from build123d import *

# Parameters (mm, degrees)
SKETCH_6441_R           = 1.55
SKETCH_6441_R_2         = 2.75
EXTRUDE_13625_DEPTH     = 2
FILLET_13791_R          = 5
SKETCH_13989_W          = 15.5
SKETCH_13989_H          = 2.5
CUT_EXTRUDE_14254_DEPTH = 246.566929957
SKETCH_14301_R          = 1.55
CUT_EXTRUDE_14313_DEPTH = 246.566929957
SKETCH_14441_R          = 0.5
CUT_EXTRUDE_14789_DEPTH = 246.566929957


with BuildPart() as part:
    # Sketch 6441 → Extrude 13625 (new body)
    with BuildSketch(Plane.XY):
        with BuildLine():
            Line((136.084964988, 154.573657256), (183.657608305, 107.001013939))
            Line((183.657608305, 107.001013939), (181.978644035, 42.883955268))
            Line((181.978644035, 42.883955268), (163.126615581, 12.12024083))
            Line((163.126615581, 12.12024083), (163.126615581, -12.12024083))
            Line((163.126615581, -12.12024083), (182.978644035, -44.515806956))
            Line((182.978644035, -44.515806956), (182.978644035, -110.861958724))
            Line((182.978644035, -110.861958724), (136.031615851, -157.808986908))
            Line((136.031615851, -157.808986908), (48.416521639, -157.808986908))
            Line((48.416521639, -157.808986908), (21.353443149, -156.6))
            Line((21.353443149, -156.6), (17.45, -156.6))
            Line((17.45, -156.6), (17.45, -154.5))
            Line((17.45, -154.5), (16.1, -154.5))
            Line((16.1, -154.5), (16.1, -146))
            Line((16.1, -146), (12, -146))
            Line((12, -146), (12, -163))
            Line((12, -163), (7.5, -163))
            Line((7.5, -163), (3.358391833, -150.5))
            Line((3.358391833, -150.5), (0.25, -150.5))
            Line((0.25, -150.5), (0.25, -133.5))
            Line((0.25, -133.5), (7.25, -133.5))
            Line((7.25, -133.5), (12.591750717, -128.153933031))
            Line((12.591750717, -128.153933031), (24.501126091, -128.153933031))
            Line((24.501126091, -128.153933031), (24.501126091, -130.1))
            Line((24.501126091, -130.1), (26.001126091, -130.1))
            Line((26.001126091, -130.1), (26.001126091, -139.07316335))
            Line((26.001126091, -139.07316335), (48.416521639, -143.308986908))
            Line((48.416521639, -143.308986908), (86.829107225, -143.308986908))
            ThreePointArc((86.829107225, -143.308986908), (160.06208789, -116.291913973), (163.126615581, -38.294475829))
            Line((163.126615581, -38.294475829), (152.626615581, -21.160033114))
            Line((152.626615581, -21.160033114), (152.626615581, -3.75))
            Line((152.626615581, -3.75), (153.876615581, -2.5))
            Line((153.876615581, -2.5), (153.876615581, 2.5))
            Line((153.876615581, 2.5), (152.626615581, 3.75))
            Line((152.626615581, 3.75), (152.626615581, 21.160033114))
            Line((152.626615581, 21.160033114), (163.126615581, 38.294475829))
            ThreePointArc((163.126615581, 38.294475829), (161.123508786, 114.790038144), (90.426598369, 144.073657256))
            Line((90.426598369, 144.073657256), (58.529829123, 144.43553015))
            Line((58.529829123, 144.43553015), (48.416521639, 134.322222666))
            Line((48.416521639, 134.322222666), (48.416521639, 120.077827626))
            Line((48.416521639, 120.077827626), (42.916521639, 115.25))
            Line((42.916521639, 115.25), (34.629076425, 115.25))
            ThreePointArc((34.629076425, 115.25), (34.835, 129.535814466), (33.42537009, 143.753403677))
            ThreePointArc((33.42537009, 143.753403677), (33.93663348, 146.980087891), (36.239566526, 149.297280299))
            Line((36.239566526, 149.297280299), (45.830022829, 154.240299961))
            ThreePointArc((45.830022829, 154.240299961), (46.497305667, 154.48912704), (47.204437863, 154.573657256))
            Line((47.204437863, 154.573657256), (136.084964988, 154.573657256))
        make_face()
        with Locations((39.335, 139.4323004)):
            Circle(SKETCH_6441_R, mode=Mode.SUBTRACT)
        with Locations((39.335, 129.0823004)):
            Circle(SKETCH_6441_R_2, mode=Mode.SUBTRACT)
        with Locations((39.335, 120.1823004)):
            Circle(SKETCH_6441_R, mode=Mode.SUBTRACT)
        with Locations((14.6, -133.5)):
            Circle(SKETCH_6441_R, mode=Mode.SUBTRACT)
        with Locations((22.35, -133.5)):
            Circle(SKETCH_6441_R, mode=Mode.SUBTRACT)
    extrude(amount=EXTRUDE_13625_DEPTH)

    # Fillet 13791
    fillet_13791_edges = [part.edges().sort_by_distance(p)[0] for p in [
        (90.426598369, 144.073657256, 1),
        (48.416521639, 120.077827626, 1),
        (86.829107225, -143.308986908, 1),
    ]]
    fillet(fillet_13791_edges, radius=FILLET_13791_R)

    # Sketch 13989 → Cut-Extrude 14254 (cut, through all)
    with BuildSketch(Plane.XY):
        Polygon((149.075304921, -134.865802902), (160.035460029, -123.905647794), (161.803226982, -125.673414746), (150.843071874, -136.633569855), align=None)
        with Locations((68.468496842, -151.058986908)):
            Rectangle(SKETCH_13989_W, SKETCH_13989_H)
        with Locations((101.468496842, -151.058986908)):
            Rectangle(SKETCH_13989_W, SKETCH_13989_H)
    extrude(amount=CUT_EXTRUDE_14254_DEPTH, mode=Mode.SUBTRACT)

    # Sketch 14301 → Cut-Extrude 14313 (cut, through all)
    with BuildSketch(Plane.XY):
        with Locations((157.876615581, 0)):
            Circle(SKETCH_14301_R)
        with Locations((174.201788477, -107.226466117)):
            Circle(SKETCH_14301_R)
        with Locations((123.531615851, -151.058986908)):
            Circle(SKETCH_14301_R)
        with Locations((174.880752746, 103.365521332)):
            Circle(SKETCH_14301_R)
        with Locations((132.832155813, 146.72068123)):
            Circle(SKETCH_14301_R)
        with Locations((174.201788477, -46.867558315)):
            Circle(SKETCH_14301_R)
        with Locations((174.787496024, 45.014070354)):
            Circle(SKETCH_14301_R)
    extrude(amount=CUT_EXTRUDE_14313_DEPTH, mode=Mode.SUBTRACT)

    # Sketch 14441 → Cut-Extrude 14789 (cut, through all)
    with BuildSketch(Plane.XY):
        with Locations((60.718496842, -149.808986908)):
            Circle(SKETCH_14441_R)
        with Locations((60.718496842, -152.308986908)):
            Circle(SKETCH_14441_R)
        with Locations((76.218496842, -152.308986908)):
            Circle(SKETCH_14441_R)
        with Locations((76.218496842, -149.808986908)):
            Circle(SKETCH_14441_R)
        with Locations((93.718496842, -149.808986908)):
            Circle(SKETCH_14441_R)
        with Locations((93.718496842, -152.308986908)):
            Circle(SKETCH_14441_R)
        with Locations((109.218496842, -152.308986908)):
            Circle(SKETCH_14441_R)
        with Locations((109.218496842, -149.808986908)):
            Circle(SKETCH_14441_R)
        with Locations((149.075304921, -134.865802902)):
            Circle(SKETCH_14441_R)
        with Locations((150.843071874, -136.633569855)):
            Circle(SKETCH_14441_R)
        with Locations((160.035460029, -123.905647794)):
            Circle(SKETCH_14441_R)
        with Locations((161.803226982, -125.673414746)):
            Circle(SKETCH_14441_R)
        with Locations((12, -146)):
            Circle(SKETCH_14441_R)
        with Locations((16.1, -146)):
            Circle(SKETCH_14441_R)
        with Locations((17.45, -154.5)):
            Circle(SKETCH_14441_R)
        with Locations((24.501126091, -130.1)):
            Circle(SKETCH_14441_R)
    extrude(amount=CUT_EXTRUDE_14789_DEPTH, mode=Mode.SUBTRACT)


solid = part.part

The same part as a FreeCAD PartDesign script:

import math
import FreeCAD as App
import Part
import Sketcher
from FreeCAD import Vector
Q = App.Units.Quantity


def edges_at(feature, points):
    """Names of the edges that pass closest to the given points."""
    edges = feature.Shape.Edges
    near = lambda p: min(range(len(edges)), key=lambda i: edges[i].distToShape(Part.Vertex(*p))[0])
    return sorted({f"Edge{near(p) + 1}" for p in points})

doc = App.newDocument("Part")
body = doc.addObject("PartDesign::Body", "Body")

# Sketch on XY plane
sketch1 = body.newObject("Sketcher::SketchObject", "Sketch")
sketch1.AttachmentSupport = (doc.getObject("XY_Plane"), [""])
sketch1.MapMode = "FlatFace"
sketch1.addGeometry(Part.LineSegment(Vector(183.7, 107, 0), Vector(136.1, 154.6, 0)), False)
sketch1.addGeometry(Part.LineSegment(Vector(136.1, 154.6, 0), Vector(47.2, 154.6, 0)), False)
sketch1.addGeometry(Part.ArcOfCircle(Part.Circle(Vector(47.2, 151.6, 0), Vector(0, 0, 1), 3), math.radians(90), math.radians(117)), False)
sketch1.addGeometry(Part.LineSegment(Vector(45.8, 154.2, 0), Vector(36.2, 149.3, 0)), False)
sketch1.addGeometry(Part.ArcOfCircle(Part.Circle(Vector(38.7, 144.6, 0), Vector(0, 0, 1), 5.3), math.radians(117), math.radians(189)), False)
sketch1.addGeometry(Part.ArcOfCircle(Part.Circle(Vector(-91.3, 124.2, 0), Vector(0, 0, 1), 126.2), math.radians(-4.07), math.radians(8.91)), False)
sketch1.addGeometry(Part.LineSegment(Vector(34.6, 115.2, 0), Vector(42.9, 115.2, 0)), False)
sketch1.addGeometry(Part.LineSegment(Vector(42.9, 115.2, 0), Vector(48.4, 120.1, 0)), False)
sketch1.addGeometry(Part.LineSegment(Vector(48.4, 120.1, 0), Vector(48.4, 134.3, 0)), False)
sketch1.addGeometry(Part.LineSegment(Vector(48.4, 134.3, 0), Vector(58.5, 144.4, 0)), False)
sketch1.addGeometry(Part.LineSegment(Vector(58.5, 144.4, 0), Vector(90.4, 144.1, 0)), False)
sketch1.addGeometry(Part.ArcOfCircle(Part.Circle(Vector(103.2, 75, 0), Vector(0, 0, 1), 70.2), math.radians(-32), math.radians(101)), False)
sketch1.addGeometry(Part.LineSegment(Vector(163.1, 38.3, 0), Vector(152.6, 21.2, 0)), False)
sketch1.addGeometry(Part.LineSegment(Vector(152.6, 21.2, 0), Vector(152.6, 3.8, 0)), False)
sketch1.addGeometry(Part.LineSegment(Vector(152.6, 3.8, 0), Vector(153.9, 2.5, 0)), False)
sketch1.addGeometry(Part.LineSegment(Vector(153.9, 2.5, 0), Vector(153.9, -2.5, 0)), False)
sketch1.addGeometry(Part.LineSegment(Vector(153.9, -2.5, 0), Vector(152.6, -3.8, 0)), False)
sketch1.addGeometry(Part.LineSegment(Vector(152.6, -3.8, 0), Vector(152.6, -21.2, 0)), False)
sketch1.addGeometry(Part.LineSegment(Vector(152.6, -21.2, 0), Vector(163.1, -38.3, 0)), False)
sketch1.addGeometry(Part.ArcOfCircle(Part.Circle(Vector(103.2, -75, 0), Vector(0, 0, 1), 70.2), math.radians(-103), math.radians(31)), False)
sketch1.addGeometry(Part.LineSegment(Vector(86.8, -143.3, 0), Vector(48.4, -143.3, 0)), False)
sketch1.addGeometry(Part.LineSegment(Vector(48.4, -143.3, 0), Vector(26, -139.1, 0)), False)
sketch1.addGeometry(Part.LineSegment(Vector(26, -139.1, 0), Vector(26, -130.1, 0)), False)
sketch1.addGeometry(Part.LineSegment(Vector(26, -130.1, 0), Vector(24.5, -130.1, 0)), False)
sketch1.addGeometry(Part.LineSegment(Vector(24.5, -130.1, 0), Vector(24.5, -128.2, 0)), False)
sketch1.addGeometry(Part.LineSegment(Vector(24.5, -128.2, 0), Vector(12.6, -128.2, 0)), False)
sketch1.addGeometry(Part.LineSegment(Vector(12.6, -128.2, 0), Vector(7.2, -133.5, 0)), False)
sketch1.addGeometry(Part.LineSegment(Vector(7.2, -133.5, 0), Vector(0.2, -133.5, 0)), False)
sketch1.addGeometry(Part.LineSegment(Vector(0.2, -133.5, 0), Vector(0.2, -150.5, 0)), False)
sketch1.addGeometry(Part.LineSegment(Vector(0.2, -150.5, 0), Vector(3.4, -150.5, 0)), False)
sketch1.addGeometry(Part.LineSegment(Vector(3.4, -150.5, 0), Vector(7.5, -163, 0)), False)
sketch1.addGeometry(Part.LineSegment(Vector(7.5, -163, 0), Vector(12, -163, 0)), False)
sketch1.addGeometry(Part.LineSegment(Vector(12, -163, 0), Vector(12, -146, 0)), False)
sketch1.addGeometry(Part.LineSegment(Vector(12, -146, 0), Vector(16.1, -146, 0)), False)
sketch1.addGeometry(Part.LineSegment(Vector(16.1, -146, 0), Vector(16.1, -154.5, 0)), False)
sketch1.addGeometry(Part.LineSegment(Vector(16.1, -154.5, 0), Vector(17.4, -154.5, 0)), False)
sketch1.addGeometry(Part.LineSegment(Vector(17.4, -154.5, 0), Vector(17.4, -156.6, 0)), False)
sketch1.addGeometry(Part.LineSegment(Vector(17.4, -156.6, 0), Vector(21.4, -156.6, 0)), False)
sketch1.addGeometry(Part.LineSegment(Vector(21.4, -156.6, 0), Vector(48.4, -157.8, 0)), False)
sketch1.addGeometry(Part.LineSegment(Vector(48.4, -157.8, 0), Vector(136, -157.8, 0)), False)
sketch1.addGeometry(Part.LineSegment(Vector(136, -157.8, 0), Vector(183, -110.9, 0)), False)
sketch1.addGeometry(Part.LineSegment(Vector(183, -110.9, 0), Vector(183, -44.5, 0)), False)
sketch1.addGeometry(Part.LineSegment(Vector(183, -44.5, 0), Vector(163.1, -12.1, 0)), False)
sketch1.addGeometry(Part.LineSegment(Vector(163.1, -12.1, 0), Vector(163.1, 12.1, 0)), False)
sketch1.addGeometry(Part.LineSegment(Vector(163.1, 12.1, 0), Vector(182, 42.9, 0)), False)
sketch1.addGeometry(Part.LineSegment(Vector(182, 42.9, 0), Vector(183.7, 107, 0)), False)
sketch1.addGeometry(Part.Circle(Vector(22.4, -133.5, 0), Vector(0, 0, 1), 1.6), False)
sketch1.addGeometry(Part.Circle(Vector(14.6, -133.5, 0), Vector(0, 0, 1), 1.6), False)
sketch1.addGeometry(Part.Circle(Vector(39.3, 120.2, 0), Vector(0, 0, 1), 1.6), False)
sketch1.addGeometry(Part.Circle(Vector(39.3, 129.1, 0), Vector(0, 0, 1), 2.8), False)
sketch1.addGeometry(Part.Circle(Vector(39.3, 139.4, 0), Vector(0, 0, 1), 1.6), False)
sketch1.addConstraint(Sketcher.Constraint("Coincident", 0, 2, 1, 1))
sketch1.addConstraint(Sketcher.Constraint("Tangent", 1, 2, 2, 1))
sketch1.addConstraint(Sketcher.Constraint("Tangent", 2, 2, 3, 1))
sketch1.addConstraint(Sketcher.Constraint("Tangent", 3, 2, 4, 1))
sketch1.addConstraint(Sketcher.Constraint("Tangent", 4, 2, 5, 2))
sketch1.addConstraint(Sketcher.Constraint("Coincident", 5, 1, 6, 1))
sketch1.addConstraint(Sketcher.Constraint("Coincident", 6, 2, 7, 1))
sketch1.addConstraint(Sketcher.Constraint("Coincident", 7, 2, 8, 1))
sketch1.addConstraint(Sketcher.Constraint("Coincident", 8, 2, 9, 1))
sketch1.addConstraint(Sketcher.Constraint("Coincident", 9, 2, 10, 1))
sketch1.addConstraint(Sketcher.Constraint("Coincident", 10, 2, 11, 2))
sketch1.addConstraint(Sketcher.Constraint("Tangent", 11, 1, 12, 1))
sketch1.addConstraint(Sketcher.Constraint("Coincident", 12, 2, 13, 1))
sketch1.addConstraint(Sketcher.Constraint("Coincident", 13, 2, 14, 1))
sketch1.addConstraint(Sketcher.Constraint("Coincident", 14, 2, 15, 1))
sketch1.addConstraint(Sketcher.Constraint("Coincident", 15, 2, 16, 1))
sketch1.addConstraint(Sketcher.Constraint("Coincident", 16, 2, 17, 1))
sketch1.addConstraint(Sketcher.Constraint("Coincident", 17, 2, 18, 1))
sketch1.addConstraint(Sketcher.Constraint("Tangent", 18, 2, 19, 2))
sketch1.addConstraint(Sketcher.Constraint("Coincident", 19, 1, 20, 1))
sketch1.addConstraint(Sketcher.Constraint("Coincident", 20, 2, 21, 1))
sketch1.addConstraint(Sketcher.Constraint("Coincident", 21, 2, 22, 1))
sketch1.addConstraint(Sketcher.Constraint("Coincident", 22, 2, 23, 1))
sketch1.addConstraint(Sketcher.Constraint("Coincident", 23, 2, 24, 1))
sketch1.addConstraint(Sketcher.Constraint("Coincident", 24, 2, 25, 1))
sketch1.addConstraint(Sketcher.Constraint("Coincident", 25, 2, 26, 1))
sketch1.addConstraint(Sketcher.Constraint("Coincident", 26, 2, 27, 1))
sketch1.addConstraint(Sketcher.Constraint("Coincident", 27, 2, 28, 1))
sketch1.addConstraint(Sketcher.Constraint("Coincident", 28, 2, 29, 1))
sketch1.addConstraint(Sketcher.Constraint("Coincident", 29, 2, 30, 1))
sketch1.addConstraint(Sketcher.Constraint("Coincident", 30, 2, 31, 1))
sketch1.addConstraint(Sketcher.Constraint("Coincident", 31, 2, 32, 1))
sketch1.addConstraint(Sketcher.Constraint("Coincident", 32, 2, 33, 1))
sketch1.addConstraint(Sketcher.Constraint("Coincident", 33, 2, 34, 1))
sketch1.addConstraint(Sketcher.Constraint("Coincident", 34, 2, 35, 1))
sketch1.addConstraint(Sketcher.Constraint("Coincident", 35, 2, 36, 1))
sketch1.addConstraint(Sketcher.Constraint("Coincident", 36, 2, 37, 1))
sketch1.addConstraint(Sketcher.Constraint("Coincident", 37, 2, 38, 1))
sketch1.addConstraint(Sketcher.Constraint("Coincident", 38, 2, 39, 1))
sketch1.addConstraint(Sketcher.Constraint("Coincident", 39, 2, 40, 1))
sketch1.addConstraint(Sketcher.Constraint("Coincident", 40, 2, 41, 1))
sketch1.addConstraint(Sketcher.Constraint("Coincident", 41, 2, 42, 1))
sketch1.addConstraint(Sketcher.Constraint("Coincident", 42, 2, 43, 1))
sketch1.addConstraint(Sketcher.Constraint("Coincident", 43, 2, 44, 1))
sketch1.addConstraint(Sketcher.Constraint("Coincident", 44, 2, 45, 1))
sketch1.addConstraint(Sketcher.Constraint("Coincident", 45, 2, 0, 1))
sketch1.addConstraint(Sketcher.Constraint("Horizontal", 1))
sketch1.addConstraint(Sketcher.Constraint("Horizontal", 6))
sketch1.addConstraint(Sketcher.Constraint("Vertical", 8))
sketch1.addConstraint(Sketcher.Constraint("Vertical", 13))
sketch1.addConstraint(Sketcher.Constraint("Vertical", 15))
sketch1.addConstraint(Sketcher.Constraint("Vertical", 17))
sketch1.addConstraint(Sketcher.Constraint("Horizontal", 20))
sketch1.addConstraint(Sketcher.Constraint("Vertical", 22))
sketch1.addConstraint(Sketcher.Constraint("Horizontal", 23))
sketch1.addConstraint(Sketcher.Constraint("Vertical", 24))
sketch1.addConstraint(Sketcher.Constraint("Horizontal", 25))
sketch1.addConstraint(Sketcher.Constraint("Horizontal", 27))
sketch1.addConstraint(Sketcher.Constraint("Vertical", 28))
sketch1.addConstraint(Sketcher.Constraint("Horizontal", 29))
sketch1.addConstraint(Sketcher.Constraint("Horizontal", 31))
sketch1.addConstraint(Sketcher.Constraint("Vertical", 32))
sketch1.addConstraint(Sketcher.Constraint("Horizontal", 33))
sketch1.addConstraint(Sketcher.Constraint("Vertical", 34))
sketch1.addConstraint(Sketcher.Constraint("Horizontal", 35))
sketch1.addConstraint(Sketcher.Constraint("Vertical", 36))
sketch1.addConstraint(Sketcher.Constraint("Horizontal", 37))
sketch1.addConstraint(Sketcher.Constraint("Horizontal", 39))
sketch1.addConstraint(Sketcher.Constraint("Vertical", 41))
sketch1.addConstraint(Sketcher.Constraint("Vertical", 43))
sketch1.addConstraint(Sketcher.Constraint("Equal", 11, 19))
sketch1.addConstraint(Sketcher.Constraint("Equal", 46, 47))
sketch1.addConstraint(Sketcher.Constraint("Equal", 47, 48))
sketch1.addConstraint(Sketcher.Constraint("Equal", 48, 50))
sketch1.addConstraint(Sketcher.Constraint("Symmetric", 11, 3, 19, 3, -1))
sketch1.addConstraint(Sketcher.Constraint("Symmetric", 13, 2, 16, 2, -1))
sketch1.addConstraint(Sketcher.Constraint("Perpendicular", 0, 9))
sketch1.addConstraint(Sketcher.Constraint("Perpendicular", 9, 14))
sketch1.addConstraint(Sketcher.Constraint("Perpendicular", 14, 16))
sketch1.addConstraint(Sketcher.Constraint("Parallel", 16, 40))
sketch1.addConstraint(Sketcher.Constraint("Parallel", 18, 42))
sketch1.addConstraint(Sketcher.Constraint("Parallel", 12, 44))
sketch1.addConstraint(Sketcher.Constraint("Horizontal", 46, 3, 47, 3))
sketch1.addConstraint(Sketcher.Constraint("Horizontal", 47, 3, 26, 2))
sketch1.addConstraint(Sketcher.Constraint("Vertical", 48, 3, 49, 3))
sketch1.addConstraint(Sketcher.Constraint("Vertical", 49, 3, 50, 3))
sketch1.addConstraint(Sketcher.Constraint("Vertical", 11, 1, 18, 2))
sketch1.addConstraint(Sketcher.Constraint("Vertical", 8, 2, 20, 2))
sketch1.addConstraint(Sketcher.Constraint("Vertical", 20, 2, 38, 2))
sketch1.addConstraint(Sketcher.Constraint("Vertical", 18, 2, 42, 2))
sketch1.addConstraint(Sketcher.Constraint("Equal", 28, 32))
sketch1.addConstraint(Sketcher.Constraint("Equal", 14, 16))
sketch1.addConstraint(Sketcher.Constraint("Radius", 2, Q("3 mm")))
sketch1.addConstraint(Sketcher.Constraint("Diameter", 46, Q("3.1 mm")))
sketch1.addConstraint(Sketcher.Constraint("Diameter", 49, Q("5.5 mm")))
sketch1.addConstraint(Sketcher.Constraint("DistanceX", 27, 2, 27, 1, Q("7 mm")))
sketch1.addConstraint(Sketcher.Constraint("DistanceY", 15, 2, 15, 1, Q("5 mm")))
sketch1.addConstraint(Sketcher.Constraint("DistanceY", 28, 2, 28, 1, Q("17 mm")))
sketch1.addConstraint(Sketcher.Constraint("Radius", 11, Q("70.25 mm")))
sketch1.addConstraint(Sketcher.Constraint("DistanceX", 23, 2, 23, 1, Q("1.5 mm")))
sketch1.addConstraint(Sketcher.Constraint("DistanceX", 31, 1, 31, 2, Q("4.5 mm")))
sketch1.addConstraint(Sketcher.Constraint("DistanceX", 33, 1, 33, 2, Q("4.1 mm")))
sketch1.addConstraint(Sketcher.Constraint("DistanceY", 34, 2, 34, 1, Q("8.5 mm")))
sketch1.addConstraint(Sketcher.Constraint("DistanceY", 36, 2, 36, 1, Q("2.1 mm")))
sketch1.addConstraint(Sketcher.Constraint("DistanceY", -1, 1, 11, 3, Q("75 mm")))
sketch1.addConstraint(Sketcher.Constraint("DistanceY", 30, 2, -1, 1, Q("163 mm")))
sketch1.addConstraint(Sketcher.Constraint("DistanceX", -1, 1, 31, 2, Q("12 mm")))
sketch1.addConstraint(Sketcher.Constraint("Angle", 12, Q("-121.5 deg")))
sketch1.addConstraint(Sketcher.Constraint("Angle", 45, Q("88.5 deg")))
sketch1.addConstraint(Sketcher.Constraint("DistanceY", 34, 2, 29, 2, Q("4 mm")))
sketch1.addConstraint(Sketcher.Constraint("DistanceX", 35, 1, 35, 2, Q("1.35 mm")))
sketch1.addConstraint(Sketcher.Constraint("DistanceX", -1, 1, 47, 3, Q("14.6 mm")))
sketch1.addConstraint(Sketcher.Constraint("DistanceY", 22, 2, -1, 1, Q("130.1 mm")))
sketch1.addConstraint(Sketcher.Constraint("Angle", 10, Q("-0.65 deg")))
sketch1.addConstraint(Sketcher.Constraint("DistanceY", 48, 3, 49, 3, Q("8.9 mm")))
sketch1.addConstraint(Sketcher.Constraint("DistanceX", 6, 2, 7, 2, Q("5.5 mm")))
sketch1.addConstraint(Sketcher.Constraint("DistanceY", 10, 2, 2, 3, Q("7.5 mm")))
sketch1.addConstraint(Sketcher.Constraint("DistanceX", 12, 2, 11, 1, Q("10.5 mm")))
sketch1.addConstraint(Sketcher.Constraint("DistanceY", 16, 2, 13, 2, Q("7.5 mm")))
sketch1.addConstraint(Sketcher.Constraint("DistanceX", 26, 2, 46, 3, Q("15.1 mm")))
sketch1.addConstraint(Sketcher.Constraint("DistanceY", 38, 2, 20, 2, Q("14.5 mm")))
sketch1.addConstraint(Sketcher.Constraint("DistanceX", -1, 1, 46, 3, Q("22.35 mm")))
sketch1.addConstraint(Sketcher.Constraint("DistanceY", -1, 1, 5, 1, Q("115.25 mm")))
sketch1.addConstraint(Sketcher.Constraint("Radius", 4, Q("5.311761 mm")))
sketch1.addConstraint(Sketcher.Constraint("DistanceY", 49, 3, 50, 3, Q("10.35 mm")))
sketch1.addConstraint(Sketcher.Constraint("DistanceX", 19, 3, 40, 2, Q("79.75 mm")))
sketch1.addConstraint(Sketcher.Constraint("DistanceX", -1, 1, 48, 3, Q("39.335 mm")))
sketch1.addConstraint(Sketcher.Constraint("Radius", 5, Q("126.238546 mm")))
sketch1.addConstraint(Sketcher.Constraint("DistanceY", 50, 3, 2, 2, Q("14.808 mm")))
sketch1.addConstraint(Sketcher.Constraint("DistanceX", 29, 1, 29, 2, Q("3.108392 mm")))
sketch1.addConstraint(Sketcher.Constraint("DistanceY", 41, 1, 41, 2, Q("66.346152 mm")))
sketch1.addConstraint(Sketcher.Constraint("DistanceY", 43, 1, 43, 2, Q("24.240482 mm")))
sketch1.addConstraint(Sketcher.Constraint("DistanceY", -1, 1, 48, 3, Q("120.1823 mm")))
sketch1.addConstraint(Sketcher.Constraint("DistanceX", -1, 1, 10, 2, Q("90.426598 mm")))
sketch1.addConstraint(Sketcher.Constraint("DistanceY", 4, 3, 2, 3, Q("6.9979 mm")))
sketch1.addConstraint(Sketcher.Constraint("Distance", 3, Q("10.78936 mm")))
sketch1.addConstraint(Sketcher.Constraint("Distance", 10, Q("31.898822 mm")))
sketch1.addConstraint(Sketcher.Constraint("Distance", 26, Q("7.557429 mm")))
sketch1.addConstraint(Sketcher.Constraint("Distance", 38, Q("27.09007 mm")))
sketch1.addConstraint(Sketcher.Constraint("DistanceX", 1, 2, 1, 1, Q("88.880527 mm")))
sketch1.addConstraint(Sketcher.Constraint("DistanceX", 6, 1, 6, 2, Q("8.287445 mm")))
sketch1.addConstraint(Sketcher.Constraint("DistanceX", 20, 2, 20, 1, Q("38.412586 mm")))
sketch1.addConstraint(Sketcher.Constraint("DistanceX", 25, 2, 25, 1, Q("11.909375 mm")))
sketch1.addConstraint(Sketcher.Constraint("DistanceX", 37, 1, 37, 2, Q("3.903443 mm")))
sketch1.addConstraint(Sketcher.Constraint("DistanceX", 39, 1, 39, 2, Q("87.615094 mm")))
sketch1.addConstraint(Sketcher.Constraint("DistanceY", 8, 1, 8, 2, Q("14.244395 mm")))
sketch1.addConstraint(Sketcher.Constraint("DistanceY", 22, 1, 22, 2, Q("8.973163 mm")))
sketch1.addConstraint(Sketcher.Constraint("DistanceY", 24, 1, 24, 2, Q("1.946067 mm")))
sketch1.addConstraint(Sketcher.Constraint("DistanceX", -1, 1, 4, 3, Q("38.673088 mm")))
sketch1.addConstraint(Sketcher.Constraint("DistanceX", -1, 1, 45, 2, Q("183.657608 mm")))
pad1 = body.newObject("PartDesign::Pad", "Pad")
pad1.Profile = sketch1
pad1.Length = 2
doc.recompute()

fillet = body.newObject("PartDesign::Fillet", "Fillet")
fillet.Base = (pad1, edges_at(pad1, [(90.427, 144.074, 1), (48.417, 120.078, 1), (86.829, -143.309, 1)]))
fillet.Radius = 5

# Sketch on XY plane
sketch2 = body.newObject("Sketcher::SketchObject", "Sketch001")
sketch2.AttachmentSupport = (doc.getObject("XY_Plane"), [""])
sketch2.MapMode = "FlatFace"
sketch2.addGeometry(Part.LineSegment(Vector(160, -123.9, 0), Vector(149.1, -134.9, 0)), False)
sketch2.addGeometry(Part.LineSegment(Vector(149.1, -134.9, 0), Vector(150.8, -136.6, 0)), False)
sketch2.addGeometry(Part.LineSegment(Vector(150.8, -136.6, 0), Vector(161.8, -125.7, 0)), False)
sketch2.addGeometry(Part.LineSegment(Vector(161.8, -125.7, 0), Vector(160, -123.9, 0)), False)
sketch2.addGeometry(Part.LineSegment(Vector(60.7, -149.8, 0), Vector(60.7, -152.3, 0)), False)
sketch2.addGeometry(Part.LineSegment(Vector(60.7, -152.3, 0), Vector(76.2, -152.3, 0)), False)
sketch2.addGeometry(Part.LineSegment(Vector(76.2, -152.3, 0), Vector(76.2, -149.8, 0)), False)
sketch2.addGeometry(Part.LineSegment(Vector(76.2, -149.8, 0), Vector(60.7, -149.8, 0)), False)
sketch2.addGeometry(Part.LineSegment(Vector(93.7, -149.8, 0), Vector(93.7, -152.3, 0)), False)
sketch2.addGeometry(Part.LineSegment(Vector(93.7, -152.3, 0), Vector(109.2, -152.3, 0)), False)
sketch2.addGeometry(Part.LineSegment(Vector(109.2, -152.3, 0), Vector(109.2, -149.8, 0)), False)
sketch2.addGeometry(Part.LineSegment(Vector(109.2, -149.8, 0), Vector(93.7, -149.8, 0)), False)
sketch2.addConstraint(Sketcher.Constraint("Coincident", 0, 2, 1, 1))
sketch2.addConstraint(Sketcher.Constraint("Coincident", 1, 2, 2, 1))
sketch2.addConstraint(Sketcher.Constraint("Coincident", 2, 2, 3, 1))
sketch2.addConstraint(Sketcher.Constraint("Coincident", 3, 2, 0, 1))
sketch2.addConstraint(Sketcher.Constraint("Coincident", 4, 2, 5, 1))
sketch2.addConstraint(Sketcher.Constraint("Coincident", 5, 2, 6, 1))
sketch2.addConstraint(Sketcher.Constraint("Coincident", 6, 2, 7, 1))
sketch2.addConstraint(Sketcher.Constraint("Coincident", 7, 2, 4, 1))
sketch2.addConstraint(Sketcher.Constraint("Coincident", 8, 2, 9, 1))
sketch2.addConstraint(Sketcher.Constraint("Coincident", 9, 2, 10, 1))
sketch2.addConstraint(Sketcher.Constraint("Coincident", 10, 2, 11, 1))
sketch2.addConstraint(Sketcher.Constraint("Coincident", 11, 2, 8, 1))
sketch2.addConstraint(Sketcher.Constraint("Vertical", 4))
sketch2.addConstraint(Sketcher.Constraint("Horizontal", 5))
sketch2.addConstraint(Sketcher.Constraint("Vertical", 6))
sketch2.addConstraint(Sketcher.Constraint("Horizontal", 7))
sketch2.addConstraint(Sketcher.Constraint("Vertical", 8))
sketch2.addConstraint(Sketcher.Constraint("Horizontal", 9))
sketch2.addConstraint(Sketcher.Constraint("Vertical", 10))
sketch2.addConstraint(Sketcher.Constraint("Horizontal", 11))
sketch2.addConstraint(Sketcher.Constraint("Perpendicular", 0, 1))
sketch2.addConstraint(Sketcher.Constraint("Perpendicular", 1, 2))
sketch2.addConstraint(Sketcher.Constraint("Perpendicular", 2, 3))
sketch2.addConstraint(Sketcher.Constraint("Horizontal", 5, 2, 8, 2))
sketch2.addConstraint(Sketcher.Constraint("Horizontal", 7, 2, 10, 2))
sketch2.addConstraint(Sketcher.Constraint("Equal", 7, 9))
sketch2.addConstraint(Sketcher.Constraint("Angle", 0, Q("-135 deg")))
sketch2.addConstraint(Sketcher.Constraint("DistanceX", 5, 1, 5, 2, Q("15.5 mm")))
sketch2.addConstraint(Sketcher.Constraint("DistanceY", 4, 2, 4, 1, Q("2.5 mm")))
sketch2.addConstraint(Sketcher.Constraint("DistanceX", 4, 2, 8, 2, Q("33 mm")))
sketch2.addConstraint(Sketcher.Constraint("Distance", 0, Q("15.5 mm")))
sketch2.addConstraint(Sketcher.Constraint("Distance", 1, Q("2.5 mm")))
sketch2.addConstraint(Sketcher.Constraint("DistanceX", -1, 1, 1, 2, Q("150.843072 mm")))
sketch2.addConstraint(Sketcher.Constraint("DistanceY", 1, 2, -1, 1, Q("136.63357 mm")))
sketch2.addConstraint(Sketcher.Constraint("DistanceX", 4, 2, 0, 2, Q("88.356808 mm")))
sketch2.addConstraint(Sketcher.Constraint("DistanceY", 4, 2, 3, 2, Q("28.403339 mm")))
pocket1 = body.newObject("PartDesign::Pocket", "Pocket")
pocket1.Profile = sketch2
pocket1.Type = "ThroughAll"
pocket1.Reversed = True

# Sketch on XY plane
sketch3 = body.newObject("Sketcher::SketchObject", "Sketch002")
sketch3.AttachmentSupport = (doc.getObject("XY_Plane"), [""])
sketch3.MapMode = "FlatFace"
sketch3.addGeometry(Part.Circle(Vector(157.9, 0, 0), Vector(0, 0, 1), 1.6), False)
sketch3.addGeometry(Part.Circle(Vector(174.2, -107.2, 0), Vector(0, 0, 1), 1.6), False)
sketch3.addGeometry(Part.Circle(Vector(123.5, -151.1, 0), Vector(0, 0, 1), 1.6), False)
sketch3.addGeometry(Part.Circle(Vector(174.9, 103.4, 0), Vector(0, 0, 1), 1.6), False)
sketch3.addGeometry(Part.Circle(Vector(132.8, 146.7, 0), Vector(0, 0, 1), 1.6), False)
sketch3.addGeometry(Part.Circle(Vector(174.2, -46.9, 0), Vector(0, 0, 1), 1.6), False)
sketch3.addGeometry(Part.Circle(Vector(174.8, 45, 0), Vector(0, 0, 1), 1.6), False)
sketch3.addConstraint(Sketcher.Constraint("Equal", 0, 1))
sketch3.addConstraint(Sketcher.Constraint("Equal", 1, 2))
sketch3.addConstraint(Sketcher.Constraint("Equal", 2, 3))
sketch3.addConstraint(Sketcher.Constraint("Equal", 3, 4))
sketch3.addConstraint(Sketcher.Constraint("Equal", 4, 5))
sketch3.addConstraint(Sketcher.Constraint("Equal", 5, 6))
sketch3.addConstraint(Sketcher.Constraint("PointOnObject", 0, 3, -1))
sketch3.addConstraint(Sketcher.Constraint("Vertical", 1, 3, 5, 3))
sketch3.addConstraint(Sketcher.Constraint("Diameter", 0, Q("3.1 mm")))
sketch3.addConstraint(Sketcher.Constraint("DistanceX", 2, 3, 0, 3, Q("34.345 mm")))
sketch3.addConstraint(Sketcher.Constraint("DistanceX", -1, 1, 1, 3, Q("174.201788 mm")))
sketch3.addConstraint(Sketcher.Constraint("DistanceY", -1, 1, 3, 3, Q("103.365521 mm")))
sketch3.addConstraint(Sketcher.Constraint("DistanceY", -1, 1, 4, 3, Q("146.720681 mm")))
sketch3.addConstraint(Sketcher.Constraint("DistanceY", 5, 3, -1, 1, Q("46.867558 mm")))
sketch3.addConstraint(Sketcher.Constraint("DistanceY", -1, 1, 6, 3, Q("45.01407 mm")))
sketch3.addConstraint(Sketcher.Constraint("DistanceY", 2, 3, 1, 3, Q("43.832521 mm")))
sketch3.addConstraint(Sketcher.Constraint("DistanceY", 2, 3, 3, 3, Q("254.424508 mm")))
sketch3.addConstraint(Sketcher.Constraint("DistanceX", 4, 3, 0, 3, Q("25.04446 mm")))
sketch3.addConstraint(Sketcher.Constraint("DistanceX", 0, 3, 6, 3, Q("16.91088 mm")))
sketch3.addConstraint(Sketcher.Constraint("DistanceX", -1, 1, 0, 3, Q("157.876616 mm")))
sketch3.addConstraint(Sketcher.Constraint("DistanceX", -1, 1, 3, 3, Q("174.880753 mm")))
pocket2 = body.newObject("PartDesign::Pocket", "Pocket001")
pocket2.Profile = sketch3
pocket2.Type = "ThroughAll"
pocket2.Reversed = True

# Sketch on XY plane
sketch4 = body.newObject("Sketcher::SketchObject", "Sketch003")
sketch4.AttachmentSupport = (doc.getObject("XY_Plane"), [""])
sketch4.MapMode = "FlatFace"
sketch4.addGeometry(Part.Circle(Vector(60.7, -149.8, 0), Vector(0, 0, 1), 0.5), False)
sketch4.addGeometry(Part.Circle(Vector(60.7, -152.3, 0), Vector(0, 0, 1), 0.5), False)
sketch4.addGeometry(Part.Circle(Vector(76.2, -152.3, 0), Vector(0, 0, 1), 0.5), False)
sketch4.addGeometry(Part.Circle(Vector(76.2, -149.8, 0), Vector(0, 0, 1), 0.5), False)
sketch4.addGeometry(Part.Circle(Vector(93.7, -149.8, 0), Vector(0, 0, 1), 0.5), False)
sketch4.addGeometry(Part.Circle(Vector(93.7, -152.3, 0), Vector(0, 0, 1), 0.5), False)
sketch4.addGeometry(Part.Circle(Vector(109.2, -152.3, 0), Vector(0, 0, 1), 0.5), False)
sketch4.addGeometry(Part.Circle(Vector(109.2, -149.8, 0), Vector(0, 0, 1), 0.5), False)
sketch4.addGeometry(Part.Circle(Vector(149.1, -134.9, 0), Vector(0, 0, 1), 0.5), False)
sketch4.addGeometry(Part.Circle(Vector(150.8, -136.6, 0), Vector(0, 0, 1), 0.5), False)
sketch4.addGeometry(Part.Circle(Vector(160, -123.9, 0), Vector(0, 0, 1), 0.5), False)
sketch4.addGeometry(Part.Circle(Vector(161.8, -125.7, 0), Vector(0, 0, 1), 0.5), False)
sketch4.addGeometry(Part.Circle(Vector(12, -146, 0), Vector(0, 0, 1), 0.5), False)
sketch4.addGeometry(Part.Circle(Vector(16.1, -146, 0), Vector(0, 0, 1), 0.5), False)
sketch4.addGeometry(Part.Circle(Vector(17.4, -154.5, 0), Vector(0, 0, 1), 0.5), False)
sketch4.addGeometry(Part.Circle(Vector(24.5, -130.1, 0), Vector(0, 0, 1), 0.5), False)
sketch4.addConstraint(Sketcher.Constraint("Equal", 0, 1))
sketch4.addConstraint(Sketcher.Constraint("Equal", 1, 2))
sketch4.addConstraint(Sketcher.Constraint("Equal", 2, 3))
sketch4.addConstraint(Sketcher.Constraint("Equal", 3, 4))
sketch4.addConstraint(Sketcher.Constraint("Equal", 4, 5))
sketch4.addConstraint(Sketcher.Constraint("Equal", 5, 6))
sketch4.addConstraint(Sketcher.Constraint("Equal", 6, 7))
sketch4.addConstraint(Sketcher.Constraint("Equal", 7, 8))
sketch4.addConstraint(Sketcher.Constraint("Equal", 8, 9))
sketch4.addConstraint(Sketcher.Constraint("Equal", 9, 10))
sketch4.addConstraint(Sketcher.Constraint("Equal", 10, 11))
sketch4.addConstraint(Sketcher.Constraint("Equal", 11, 12))
sketch4.addConstraint(Sketcher.Constraint("Equal", 12, 13))
sketch4.addConstraint(Sketcher.Constraint("Equal", 13, 14))
sketch4.addConstraint(Sketcher.Constraint("Equal", 14, 15))
sketch4.addConstraint(Sketcher.Constraint("Horizontal", 1, 3, 2, 3))
sketch4.addConstraint(Sketcher.Constraint("Horizontal", 0, 3, 3, 3))
sketch4.addConstraint(Sketcher.Constraint("Horizontal", 3, 3, 4, 3))
sketch4.addConstraint(Sketcher.Constraint("Horizontal", 2, 3, 5, 3))
sketch4.addConstraint(Sketcher.Constraint("Horizontal", 5, 3, 6, 3))
sketch4.addConstraint(Sketcher.Constraint("Horizontal", 4, 3, 7, 3))
sketch4.addConstraint(Sketcher.Constraint("Horizontal", 12, 3, 13, 3))
sketch4.addConstraint(Sketcher.Constraint("Vertical", 0, 3, 1, 3))
sketch4.addConstraint(Sketcher.Constraint("Vertical", 2, 3, 3, 3))
sketch4.addConstraint(Sketcher.Constraint("Vertical", 4, 3, 5, 3))
sketch4.addConstraint(Sketcher.Constraint("Vertical", 6, 3, 7, 3))
sketch4.addConstraint(Sketcher.Constraint("Diameter", 0, Q("1 mm")))
sketch4.addConstraint(Sketcher.Constraint("DistanceX", -1, 1, 12, 3, Q("12 mm")))
sketch4.addConstraint(Sketcher.Constraint("DistanceY", 12, 3, -1, 1, Q("146 mm")))
sketch4.addConstraint(Sketcher.Constraint("DistanceX", 0, 3, 4, 3, Q("33 mm")))
sketch4.addConstraint(Sketcher.Constraint("DistanceX", 2, 3, 6, 3, Q("33 mm")))
sketch4.addConstraint(Sketcher.Constraint("DistanceX", -1, 1, 13, 3, Q("16.1 mm")))
sketch4.addConstraint(Sketcher.Constraint("DistanceY", 14, 3, -1, 1, Q("154.5 mm")))
sketch4.addConstraint(Sketcher.Constraint("DistanceY", 15, 3, -1, 1, Q("130.1 mm")))
sketch4.addConstraint(Sketcher.Constraint("DistanceY", 1, 3, 0, 3, Q("2.5 mm")))
sketch4.addConstraint(Sketcher.Constraint("DistanceX", 1, 3, 2, 3, Q("15.5 mm")))
sketch4.addConstraint(Sketcher.Constraint("DistanceX", -1, 1, 14, 3, Q("17.45 mm")))
sketch4.addConstraint(Sketcher.Constraint("DistanceX", -1, 1, 9, 3, Q("150.843072 mm")))
sketch4.addConstraint(Sketcher.Constraint("DistanceY", 9, 3, -1, 1, Q("136.63357 mm")))
sketch4.addConstraint(Sketcher.Constraint("DistanceX", -1, 1, 10, 3, Q("160.03546 mm")))
sketch4.addConstraint(Sketcher.Constraint("DistanceX", 7, 3, 8, 3, Q("39.856808 mm")))
sketch4.addConstraint(Sketcher.Constraint("DistanceY", 7, 3, 10, 3, Q("25.903339 mm")))
sketch4.addConstraint(Sketcher.Constraint("DistanceY", 8, 3, 11, 3, Q("9.192388 mm")))
sketch4.addConstraint(Sketcher.Constraint("DistanceX", 7, 3, 11, 3, Q("52.58473 mm")))
sketch4.addConstraint(Sketcher.Constraint("DistanceX", 15, 3, 0, 3, Q("36.217371 mm")))
sketch4.addConstraint(Sketcher.Constraint("DistanceX", -1, 1, 0, 3, Q("60.718497 mm")))
sketch4.addConstraint(Sketcher.Constraint("DistanceY", 0, 3, -1, 1, Q("149.808987 mm")))
sketch4.addConstraint(Sketcher.Constraint("DistanceY", 8, 3, -1, 1, Q("134.865803 mm")))
pocket3 = body.newObject("PartDesign::Pocket", "Pocket002")
pocket3.Profile = sketch4
pocket3.Type = "ThroughAll"
pocket3.Reversed = True

doc.recompute()
